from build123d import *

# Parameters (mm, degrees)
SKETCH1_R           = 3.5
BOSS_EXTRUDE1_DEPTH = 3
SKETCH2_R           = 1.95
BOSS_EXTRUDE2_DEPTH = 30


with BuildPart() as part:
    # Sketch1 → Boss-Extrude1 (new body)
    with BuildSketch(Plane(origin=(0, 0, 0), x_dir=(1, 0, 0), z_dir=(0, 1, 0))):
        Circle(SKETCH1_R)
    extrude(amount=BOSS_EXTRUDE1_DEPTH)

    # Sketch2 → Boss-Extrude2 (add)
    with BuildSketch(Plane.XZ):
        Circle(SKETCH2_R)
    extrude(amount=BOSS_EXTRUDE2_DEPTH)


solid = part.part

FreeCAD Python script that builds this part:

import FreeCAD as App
import Part
import Sketcher
from FreeCAD import Vector

doc = App.newDocument("Part")
body = doc.addObject("PartDesign::Body", "Body")

sketch1 = doc.addObject("Sketcher::SketchObject", "Sketch")
body.addObject(sketch1)
sketch1.AttachmentSupport = (doc.XZ_Plane, [""])
sketch1.MapMode = "FlatFace"
sketch1.addGeometry(Part.Circle(Vector(0, 0, 0), Vector(0, 0, 1), 3.5), False)
sketch1.addConstraint(Sketcher.Constraint("Coincident", 0, 3, -1, 1))
sketch1.addConstraint(Sketcher.Constraint("Diameter", 0, 7.0))
pad1 = doc.addObject("PartDesign::Pad", "Pad")
body.addObject(pad1)
pad1.Profile = sketch1
pad1.Length = 3
pad1.Reversed = True

sketch2 = doc.addObject("Sketcher::SketchObject", "Sketch001")
body.addObject(sketch2)
sketch2.AttachmentSupport = (doc.XZ_Plane, [""])
sketch2.MapMode = "FlatFace"
sketch2.addGeometry(Part.Circle(Vector(0, 0, 0), Vector(0, 0, 1), 1.9), False)
sketch2.addConstraint(Sketcher.Constraint("Coincident", 0, 3, -1, 1))
sketch2.addConstraint(Sketcher.Constraint("Diameter", 0, 3.9))
pad2 = doc.addObject("PartDesign::Pad", "Pad001")
body.addObject(pad2)
pad2.Profile = sketch2
pad2.Length = 30

doc.recompute()
